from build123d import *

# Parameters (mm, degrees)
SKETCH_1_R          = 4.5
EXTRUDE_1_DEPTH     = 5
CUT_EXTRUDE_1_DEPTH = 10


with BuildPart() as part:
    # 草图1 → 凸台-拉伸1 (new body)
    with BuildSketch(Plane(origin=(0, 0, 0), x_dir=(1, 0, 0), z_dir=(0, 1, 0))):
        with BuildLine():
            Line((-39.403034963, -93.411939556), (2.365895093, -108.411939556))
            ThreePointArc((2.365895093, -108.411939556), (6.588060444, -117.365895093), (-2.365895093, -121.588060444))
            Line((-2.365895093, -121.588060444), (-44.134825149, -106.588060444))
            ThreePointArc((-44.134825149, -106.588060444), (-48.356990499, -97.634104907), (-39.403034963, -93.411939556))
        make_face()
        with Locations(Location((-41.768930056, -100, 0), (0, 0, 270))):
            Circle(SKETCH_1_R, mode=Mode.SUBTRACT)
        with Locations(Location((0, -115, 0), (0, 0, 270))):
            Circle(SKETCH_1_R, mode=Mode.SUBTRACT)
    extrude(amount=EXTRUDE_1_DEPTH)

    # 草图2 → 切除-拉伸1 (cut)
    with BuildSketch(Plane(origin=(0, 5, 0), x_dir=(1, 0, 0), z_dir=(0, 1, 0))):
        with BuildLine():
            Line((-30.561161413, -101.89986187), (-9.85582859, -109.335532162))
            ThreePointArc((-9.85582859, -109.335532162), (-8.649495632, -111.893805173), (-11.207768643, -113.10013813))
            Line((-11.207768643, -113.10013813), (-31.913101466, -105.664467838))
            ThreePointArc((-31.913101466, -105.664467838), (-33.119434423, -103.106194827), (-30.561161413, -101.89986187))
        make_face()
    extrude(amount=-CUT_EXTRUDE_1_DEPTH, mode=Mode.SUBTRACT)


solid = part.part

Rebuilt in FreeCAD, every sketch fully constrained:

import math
import FreeCAD as App
import Part
import Sketcher
from FreeCAD import Vector

doc = App.newDocument("Part")
body = doc.addObject("PartDesign::Body", "Body")

sketch1 = doc.addObject("Sketcher::SketchObject", "Sketch")
body.addObject(sketch1)
sketch1.AttachmentSupport = (doc.XZ_Plane, [""])
sketch1.MapMode = "FlatFace"
sketch1.addGeometry(Part.LineSegment(Vector(2.365895, 108.41194, 0), Vector(-39.403035, 93.41194, 0)), False)
sketch1.addGeometry(Part.ArcOfCircle(Part.Circle(Vector(-41.76893, 100, 0), Vector(0, 0, 1), 7), math.radians(109.754158), math.radians(289.754158)), False)
sketch1.addGeometry(Part.LineSegment(Vector(-44.134825, 106.58806, 0), Vector(-2.365895, 121.58806, 0)), False)
sketch1.addGeometry(Part.ArcOfCircle(Part.Circle(Vector(0, 115, 0), Vector(0, 0, 1), 7), math.radians(-70.245842), math.radians(109.754158)), False)
sketch1.addGeometry(Part.Circle(Vector(0, 115, 0), Vector(0, 0, 1), 4.5), False)
sketch1.addGeometry(Part.Circle(Vector(-41.76893, 100, 0), Vector(0, 0, 1), 4.5), False)
sketch1.addConstraint(Sketcher.Constraint("Tangent", 0, 2, 1, 2))
sketch1.addConstraint(Sketcher.Constraint("Tangent", 1, 1, 2, 1))
sketch1.addConstraint(Sketcher.Constraint("Tangent", 2, 2, 3, 2))
sketch1.addConstraint(Sketcher.Constraint("Tangent", 3, 1, 0, 1))
sketch1.addConstraint(Sketcher.Constraint("Coincident", 4, 3, 3, 3))
sketch1.addConstraint(Sketcher.Constraint("Coincident", 5, 3, 1, 3))
sketch1.addConstraint(Sketcher.Constraint("Equal", 1, 3))
sketch1.addConstraint(Sketcher.Constraint("Equal", 4, 5))
sketch1.addConstraint(Sketcher.Constraint("PointOnObject", 3, 3, -2))
sketch1.addConstraint(Sketcher.Constraint("Diameter", 4, 9.0))
sketch1.addConstraint(Sketcher.Constraint("Radius", 1, 7.0))
sketch1.addConstraint(Sketcher.Constraint("DistanceY", -1, 1, 1, 3, 100.0))
sketch1.addConstraint(Sketcher.Constraint("DistanceY", -1, 1, 3, 3, 115.0))
sketch1.addConstraint(Sketcher.Constraint("DistanceX", 1, 3, -1, 1, 41.76893))
pad1 = doc.addObject("PartDesign::Pad", "Pad")
body.addObject(pad1)
pad1.Profile = sketch1
pad1.Length = 5
pad1.Reversed = True

sketch2 = doc.addObject("Sketcher::SketchObject", "Sketch001")
body.addObject(sketch2)
sketch2.AttachmentSupport = (doc.XZ_Plane, [""])
sketch2.MapMode = "FlatFace"
sketch2.AttachmentOffset = App.Placement(Vector(0, 0, -5), App.Rotation())
sketch2.addGeometry(Part.LineSegment(Vector(-9.855829, 109.335532, 0), Vector(-30.561161, 101.899862, 0)), False)
sketch2.addGeometry(Part.ArcOfCircle(Part.Circle(Vector(-31.237131, 103.782165, 0), Vector(0, 0, 1), 2), math.radians(109.754158), math.radians(289.754158)), False)
sketch2.addGeometry(Part.LineSegment(Vector(-31.913101, 105.664468, 0), Vector(-11.207769, 113.100138, 0)), False)
sketch2.addGeometry(Part.ArcOfCircle(Part.Circle(Vector(-10.531799, 111.217835, 0), Vector(0, 0, 1), 2), math.radians(-70.245842), math.radians(109.754158)), False)
sketch2.addConstraint(Sketcher.Constraint("Tangent", 0, 2, 1, 2))
sketch2.addConstraint(Sketcher.Constraint("Tangent", 1, 1, 2, 1))
sketch2.addConstraint(Sketcher.Constraint("Tangent", 2, 2, 3, 2))
sketch2.addConstraint(Sketcher.Constraint("Tangent", 3, 1, 0, 1))
sketch2.addConstraint(Sketcher.Constraint("Equal", 1, 3))
sketch2.addConstraint(Sketcher.Constraint("Radius", 1, 2.0))
sketch2.addConstraint(Sketcher.Constraint("Distance", 0, 22.0))
sketch2.addConstraint(Sketcher.Constraint("DistanceX", 3, 3, -1, 1, 10.531799))
sketch2.addConstraint(Sketcher.Constraint("DistanceX", 1, 1, -1, 1, 31.913101))
sketch2.addConstraint(Sketcher.Constraint("DistanceY", -1, 1, 0, 2, 101.899862))
pocket1 = doc.addObject("PartDesign::Pocket", "Pocket")
body.addObject(pocket1)
pocket1.Profile = sketch2
pocket1.Length = 10
pocket1.Reversed = True

doc.recompute()
